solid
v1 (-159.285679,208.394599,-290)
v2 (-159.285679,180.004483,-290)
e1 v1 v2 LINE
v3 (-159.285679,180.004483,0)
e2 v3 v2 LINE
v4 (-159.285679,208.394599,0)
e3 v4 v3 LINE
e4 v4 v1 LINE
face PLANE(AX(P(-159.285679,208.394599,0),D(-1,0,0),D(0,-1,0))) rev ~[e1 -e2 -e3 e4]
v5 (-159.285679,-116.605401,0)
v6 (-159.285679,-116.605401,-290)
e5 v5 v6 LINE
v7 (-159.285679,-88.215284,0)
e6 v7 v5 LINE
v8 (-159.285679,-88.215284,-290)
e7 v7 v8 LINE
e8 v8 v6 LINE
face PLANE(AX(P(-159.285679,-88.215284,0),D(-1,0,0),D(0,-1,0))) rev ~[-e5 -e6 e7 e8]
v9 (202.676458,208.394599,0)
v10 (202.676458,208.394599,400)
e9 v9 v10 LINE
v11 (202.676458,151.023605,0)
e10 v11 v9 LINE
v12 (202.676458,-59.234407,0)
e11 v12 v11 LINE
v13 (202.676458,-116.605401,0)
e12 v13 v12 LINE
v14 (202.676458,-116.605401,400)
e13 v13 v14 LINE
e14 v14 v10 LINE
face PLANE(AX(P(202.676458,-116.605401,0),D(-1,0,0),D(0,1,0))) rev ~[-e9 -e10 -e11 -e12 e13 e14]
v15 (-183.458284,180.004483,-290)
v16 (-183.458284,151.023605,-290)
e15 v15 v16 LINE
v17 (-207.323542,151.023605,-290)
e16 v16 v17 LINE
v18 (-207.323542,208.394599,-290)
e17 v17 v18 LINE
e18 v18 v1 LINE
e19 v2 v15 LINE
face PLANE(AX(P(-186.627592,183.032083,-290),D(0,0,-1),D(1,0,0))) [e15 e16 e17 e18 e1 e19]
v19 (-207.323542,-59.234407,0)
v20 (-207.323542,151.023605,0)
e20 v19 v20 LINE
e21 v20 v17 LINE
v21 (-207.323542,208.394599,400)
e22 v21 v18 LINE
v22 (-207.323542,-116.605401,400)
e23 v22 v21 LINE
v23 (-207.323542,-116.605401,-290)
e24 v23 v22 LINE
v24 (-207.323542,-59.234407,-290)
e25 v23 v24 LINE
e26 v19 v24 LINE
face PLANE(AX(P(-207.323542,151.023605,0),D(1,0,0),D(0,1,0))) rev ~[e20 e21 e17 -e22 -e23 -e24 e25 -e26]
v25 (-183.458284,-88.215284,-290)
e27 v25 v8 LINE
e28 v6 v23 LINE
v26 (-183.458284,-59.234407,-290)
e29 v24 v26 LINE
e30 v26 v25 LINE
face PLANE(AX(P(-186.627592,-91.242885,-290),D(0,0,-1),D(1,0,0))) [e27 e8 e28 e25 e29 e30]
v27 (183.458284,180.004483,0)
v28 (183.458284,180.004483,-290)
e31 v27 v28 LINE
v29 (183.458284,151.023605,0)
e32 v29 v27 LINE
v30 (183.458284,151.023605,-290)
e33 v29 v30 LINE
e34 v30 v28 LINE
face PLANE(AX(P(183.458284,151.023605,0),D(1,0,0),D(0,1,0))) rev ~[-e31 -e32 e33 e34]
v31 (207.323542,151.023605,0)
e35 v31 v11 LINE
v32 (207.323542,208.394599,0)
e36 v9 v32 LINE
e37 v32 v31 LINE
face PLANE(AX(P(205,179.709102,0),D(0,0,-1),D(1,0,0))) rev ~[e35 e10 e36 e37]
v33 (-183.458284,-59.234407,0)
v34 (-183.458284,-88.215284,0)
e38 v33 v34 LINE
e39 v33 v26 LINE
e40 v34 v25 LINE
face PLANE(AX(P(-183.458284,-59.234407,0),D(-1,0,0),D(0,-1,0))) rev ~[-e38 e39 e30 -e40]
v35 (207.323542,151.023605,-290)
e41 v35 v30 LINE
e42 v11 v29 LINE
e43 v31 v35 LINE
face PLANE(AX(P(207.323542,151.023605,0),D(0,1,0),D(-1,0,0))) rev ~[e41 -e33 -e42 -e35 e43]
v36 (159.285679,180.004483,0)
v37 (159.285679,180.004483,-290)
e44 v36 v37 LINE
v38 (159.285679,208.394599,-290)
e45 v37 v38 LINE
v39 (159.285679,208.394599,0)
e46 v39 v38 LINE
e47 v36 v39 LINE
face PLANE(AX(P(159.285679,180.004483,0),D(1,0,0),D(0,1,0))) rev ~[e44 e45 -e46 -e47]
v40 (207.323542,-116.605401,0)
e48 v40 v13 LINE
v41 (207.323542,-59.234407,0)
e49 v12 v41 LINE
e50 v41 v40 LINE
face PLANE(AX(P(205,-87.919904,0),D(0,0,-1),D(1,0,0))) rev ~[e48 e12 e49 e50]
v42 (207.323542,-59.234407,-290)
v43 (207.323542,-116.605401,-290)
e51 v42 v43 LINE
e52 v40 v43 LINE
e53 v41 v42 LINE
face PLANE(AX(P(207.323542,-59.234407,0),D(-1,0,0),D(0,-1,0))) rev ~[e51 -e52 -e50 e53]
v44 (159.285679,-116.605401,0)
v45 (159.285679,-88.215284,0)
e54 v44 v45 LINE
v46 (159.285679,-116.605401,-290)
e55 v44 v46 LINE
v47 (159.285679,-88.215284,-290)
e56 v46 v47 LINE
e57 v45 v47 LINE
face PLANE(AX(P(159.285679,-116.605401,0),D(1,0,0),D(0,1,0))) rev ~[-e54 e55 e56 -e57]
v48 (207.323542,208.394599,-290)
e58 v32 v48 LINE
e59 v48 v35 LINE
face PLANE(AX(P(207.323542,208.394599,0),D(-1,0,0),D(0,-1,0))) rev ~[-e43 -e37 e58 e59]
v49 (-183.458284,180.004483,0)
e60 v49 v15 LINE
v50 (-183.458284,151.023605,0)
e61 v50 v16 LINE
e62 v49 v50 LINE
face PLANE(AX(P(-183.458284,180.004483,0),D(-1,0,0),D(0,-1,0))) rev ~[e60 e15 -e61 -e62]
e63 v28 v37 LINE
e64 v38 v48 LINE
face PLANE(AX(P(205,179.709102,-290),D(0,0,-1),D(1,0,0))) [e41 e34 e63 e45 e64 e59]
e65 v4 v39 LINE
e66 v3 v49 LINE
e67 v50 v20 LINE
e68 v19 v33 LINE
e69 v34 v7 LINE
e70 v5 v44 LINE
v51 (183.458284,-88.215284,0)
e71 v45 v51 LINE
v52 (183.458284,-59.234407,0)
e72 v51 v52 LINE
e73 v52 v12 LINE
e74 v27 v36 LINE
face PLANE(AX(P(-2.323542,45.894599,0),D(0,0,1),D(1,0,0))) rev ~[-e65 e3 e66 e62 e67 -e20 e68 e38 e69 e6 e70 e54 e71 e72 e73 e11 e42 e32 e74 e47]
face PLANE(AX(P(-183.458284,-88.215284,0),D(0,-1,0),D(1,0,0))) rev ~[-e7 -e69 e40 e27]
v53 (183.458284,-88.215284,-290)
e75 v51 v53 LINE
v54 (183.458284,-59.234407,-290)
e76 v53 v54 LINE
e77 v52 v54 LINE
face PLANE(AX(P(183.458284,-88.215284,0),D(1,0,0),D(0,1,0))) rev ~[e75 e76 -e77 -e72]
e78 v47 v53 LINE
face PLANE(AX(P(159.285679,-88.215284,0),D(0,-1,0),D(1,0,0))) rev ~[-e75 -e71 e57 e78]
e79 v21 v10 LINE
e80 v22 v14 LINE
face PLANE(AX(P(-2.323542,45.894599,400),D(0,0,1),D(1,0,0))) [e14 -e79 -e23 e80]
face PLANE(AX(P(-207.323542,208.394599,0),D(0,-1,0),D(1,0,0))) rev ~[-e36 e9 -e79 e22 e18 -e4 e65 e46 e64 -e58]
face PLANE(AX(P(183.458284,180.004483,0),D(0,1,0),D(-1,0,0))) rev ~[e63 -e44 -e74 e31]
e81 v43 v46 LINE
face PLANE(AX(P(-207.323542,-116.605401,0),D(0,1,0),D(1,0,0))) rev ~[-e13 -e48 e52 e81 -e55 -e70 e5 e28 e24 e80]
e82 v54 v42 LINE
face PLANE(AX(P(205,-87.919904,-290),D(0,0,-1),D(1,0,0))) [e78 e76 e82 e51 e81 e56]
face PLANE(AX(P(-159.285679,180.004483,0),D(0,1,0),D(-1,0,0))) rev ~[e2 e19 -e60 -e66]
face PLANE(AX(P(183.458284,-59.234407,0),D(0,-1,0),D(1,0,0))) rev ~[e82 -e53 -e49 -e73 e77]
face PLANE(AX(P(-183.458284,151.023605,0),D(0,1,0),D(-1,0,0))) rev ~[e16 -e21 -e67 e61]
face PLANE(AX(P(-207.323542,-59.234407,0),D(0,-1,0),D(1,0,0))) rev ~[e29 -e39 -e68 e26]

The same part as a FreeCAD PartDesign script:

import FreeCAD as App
import Part
import Sketcher
from FreeCAD import Vector


def add_polygon(sketch, points):
    """Adds a closed chain of lines whose ends are joined by coincident constraints."""
    first, n = sketch.GeometryCount, len(points)
    for a, b in zip(points, points[1:] + points[:1]):
        sketch.addGeometry(Part.LineSegment(App.Vector(*a, 0), App.Vector(*b, 0)), False)
    for i in range(n):
        sketch.addConstraint(Sketcher.Constraint("Coincident", first + i, 2, first + (i + 1) % n, 1))

doc = App.newDocument("Part")
body = doc.addObject("PartDesign::Body", "Body")

# Sketch on XY plane
sketch1 = body.newObject("Sketcher::SketchObject", "Sketch")
sketch1.AttachmentSupport = (doc.getObject("XY_Plane"), [""])
sketch1.MapMode = "FlatFace"
add_polygon(sketch1, [(-207.323542, 208.394599), (-207.323542, -116.605401), (202.676458, -116.605401), (202.676458, 208.394599)])  # lines 0-3
sketch1.addConstraint([
    Sketcher.Constraint("Vertical", 0),
    Sketcher.Constraint("Horizontal", 1),
    Sketcher.Constraint("Vertical", 2),
    Sketcher.Constraint("Horizontal", 3),
    Sketcher.Constraint("DistanceX", 1, 1, 1, 2, 410.0),
    Sketcher.Constraint("DistanceY", 0, 2, 0, 1, 325.0),
    Sketcher.Constraint("DistanceY", 0, 2, -1, 1, 116.605401),
    Sketcher.Constraint("DistanceX", 0, 2, -1, 1, 207.323542),
])
pad1 = body.newObject("PartDesign::Pad", "Pad")
pad1.Profile = sketch1
pad1.Length = 400

# Sketch on XY plane
sketch2 = body.newObject("Sketcher::SketchObject", "Sketch001")
sketch2.AttachmentSupport = (doc.getObject("XY_Plane"), [""])
sketch2.MapMode = "FlatFace"
add_polygon(sketch2, [(-183.458284, 151.023605), (-207.323542, 151.023605), (-207.323542, 208.394599), (-159.285679, 208.394599), (-159.285679, 180.004483), (-183.458284, 180.004483)])  # lines 0-5
add_polygon(sketch2, [(207.323542, -59.234407), (207.323542, -116.605401), (159.285679, -116.605401), (159.285679, -88.215284), (183.458284, -88.215284), (183.458284, -59.234407)])  # lines 6-11
add_polygon(sketch2, [(207.323542, 208.394599), (207.323542, 151.023605), (183.458284, 151.023605), (183.458284, 180.004483), (159.285679, 180.004483), (159.285679, 208.394599)])  # lines 12-17
add_polygon(sketch2, [(-159.285679, -116.605401), (-207.323542, -116.605401), (-207.323542, -59.234407), (-183.458284, -59.234407), (-183.458284, -88.215284), (-159.285679, -88.215284)])  # lines 18-23
sketch2.addConstraint([
    Sketcher.Constraint("Horizontal", 0),
    Sketcher.Constraint("Vertical", 1),
    Sketcher.Constraint("Horizontal", 2),
    Sketcher.Constraint("Vertical", 3),
    Sketcher.Constraint("Horizontal", 4),
    Sketcher.Constraint("Vertical", 5),
    Sketcher.Constraint("Vertical", 6),
    Sketcher.Constraint("Horizontal", 7),
    Sketcher.Constraint("Vertical", 8),
    Sketcher.Constraint("Horizontal", 9),
    Sketcher.Constraint("Vertical", 10),
    Sketcher.Constraint("Horizontal", 11),
    Sketcher.Constraint("Vertical", 12),
    Sketcher.Constraint("Horizontal", 13),
    Sketcher.Constraint("Vertical", 14),
    Sketcher.Constraint("Horizontal", 15),
    Sketcher.Constraint("Vertical", 16),
    Sketcher.Constraint("Horizontal", 17),
    Sketcher.Constraint("Horizontal", 18),
    Sketcher.Constraint("Vertical", 19),
    Sketcher.Constraint("Horizontal", 20),
    Sketcher.Constraint("Vertical", 21),
    Sketcher.Constraint("Horizontal", 22),
    Sketcher.Constraint("Vertical", 23),
    Sketcher.Constraint("Symmetric", 0, 2, 12, 2, -2),
    Sketcher.Constraint("Symmetric", 4, 2, 14, 2, -2),
    Sketcher.Constraint("Symmetric", 2, 2, 16, 2, -2),
    Sketcher.Constraint("Symmetric", 6, 2, 18, 2, -2),
    Sketcher.Constraint("Symmetric", 10, 2, 20, 2, -2),
    Sketcher.Constraint("Symmetric", 8, 2, 22, 2, -2),
    Sketcher.Constraint("Vertical", 11, 2, 12, 2),
    Sketcher.Constraint("Vertical", 10, 2, 13, 2),
    Sketcher.Constraint("Vertical", 8, 2, 15, 2),
    Sketcher.Constraint("Equal", 1, 6),
    Sketcher.Constraint("Equal", 3, 8),
    Sketcher.Constraint("DistanceY", 6, 2, 2, 2, 325.0),
    Sketcher.Constraint("DistanceX", 0, 2, 0, 1, 23.865258),
    Sketcher.Constraint("DistanceY", -1, 1, 1, 2, 208.394599),
    Sketcher.Constraint("DistanceX", 2, 1, 2, 2, 48.037863),
    Sketcher.Constraint("DistanceY", 1, 1, 1, 2, 57.370994),
    Sketcher.Constraint("DistanceY", 3, 2, 3, 1, 28.390116),
    Sketcher.Constraint("DistanceX", 0, 2, -1, 1, 207.323542),
])
pad2 = body.newObject("PartDesign::Pad", "Pad001")
pad2.Profile = sketch2
pad2.Length = 290
pad2.Reversed = True

doc.recompute()
